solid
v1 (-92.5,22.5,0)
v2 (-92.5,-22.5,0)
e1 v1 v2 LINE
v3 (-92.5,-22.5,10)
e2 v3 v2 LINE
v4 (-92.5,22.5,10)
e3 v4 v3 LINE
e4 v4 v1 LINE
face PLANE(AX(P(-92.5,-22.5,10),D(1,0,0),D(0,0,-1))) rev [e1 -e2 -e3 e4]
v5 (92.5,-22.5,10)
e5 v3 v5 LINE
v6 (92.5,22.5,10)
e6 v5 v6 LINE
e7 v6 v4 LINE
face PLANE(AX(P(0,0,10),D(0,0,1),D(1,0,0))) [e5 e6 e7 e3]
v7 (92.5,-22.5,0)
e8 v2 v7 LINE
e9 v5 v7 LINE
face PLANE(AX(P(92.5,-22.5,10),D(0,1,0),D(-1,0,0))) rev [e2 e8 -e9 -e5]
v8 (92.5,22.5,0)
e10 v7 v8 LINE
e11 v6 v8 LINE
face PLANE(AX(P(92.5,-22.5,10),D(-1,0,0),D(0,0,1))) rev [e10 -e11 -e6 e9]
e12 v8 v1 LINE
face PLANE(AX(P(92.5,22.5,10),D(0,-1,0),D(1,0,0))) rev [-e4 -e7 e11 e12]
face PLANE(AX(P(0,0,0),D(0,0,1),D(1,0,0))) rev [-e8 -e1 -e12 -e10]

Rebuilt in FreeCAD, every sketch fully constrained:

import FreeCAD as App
import Part
import Sketcher
Q = App.Units.Quantity

doc = App.newDocument("Part")
body = doc.addObject("PartDesign::Body", "Body")

# Sketch on XY plane
sketch1 = body.newObject("Sketcher::SketchObject", "Sketch")
sketch1.AttachmentSupport = (doc.getObject("XY_Plane"), [""])
sketch1.MapMode = "FlatFace"
sketch1.addGeometry(Part.LineSegment(App.Vector(-92.5, 22.5, 0), App.Vector(-92.5, -22.5, 0)), False)
sketch1.addGeometry(Part.LineSegment(App.Vector(-92.5, -22.5, 0), App.Vector(92.5, -22.5, 0)), False)
sketch1.addGeometry(Part.LineSegment(App.Vector(92.5, -22.5, 0), App.Vector(92.5, 22.5, 0)), False)
sketch1.addGeometry(Part.LineSegment(App.Vector(92.5, 22.5, 0), App.Vector(-92.5, 22.5, 0)), False)
sketch1.addConstraint(Sketcher.Constraint("Coincident", 0, 2, 1, 1))
sketch1.addConstraint(Sketcher.Constraint("Coincident", 1, 2, 2, 1))
sketch1.addConstraint(Sketcher.Constraint("Coincident", 2, 2, 3, 1))
sketch1.addConstraint(Sketcher.Constraint("Coincident", 3, 2, 0, 1))
sketch1.addConstraint(Sketcher.Constraint("Vertical", 0))
sketch1.addConstraint(Sketcher.Constraint("Horizontal", 1))
sketch1.addConstraint(Sketcher.Constraint("Vertical", 2))
sketch1.addConstraint(Sketcher.Constraint("Horizontal", 3))
sketch1.addConstraint(Sketcher.Constraint("Symmetric", 0, 2, 2, 2, -1, 1))
sketch1.addConstraint(Sketcher.Constraint("DistanceX", 1, 1, 1, 2, Q("185 mm")))
sketch1.addConstraint(Sketcher.Constraint("DistanceY", 0, 2, 0, 1, Q("45 mm")))
pad1 = body.newObject("PartDesign::Pad", "Pad")
pad1.Profile = sketch1
pad1.Length = 10

doc.recompute()
